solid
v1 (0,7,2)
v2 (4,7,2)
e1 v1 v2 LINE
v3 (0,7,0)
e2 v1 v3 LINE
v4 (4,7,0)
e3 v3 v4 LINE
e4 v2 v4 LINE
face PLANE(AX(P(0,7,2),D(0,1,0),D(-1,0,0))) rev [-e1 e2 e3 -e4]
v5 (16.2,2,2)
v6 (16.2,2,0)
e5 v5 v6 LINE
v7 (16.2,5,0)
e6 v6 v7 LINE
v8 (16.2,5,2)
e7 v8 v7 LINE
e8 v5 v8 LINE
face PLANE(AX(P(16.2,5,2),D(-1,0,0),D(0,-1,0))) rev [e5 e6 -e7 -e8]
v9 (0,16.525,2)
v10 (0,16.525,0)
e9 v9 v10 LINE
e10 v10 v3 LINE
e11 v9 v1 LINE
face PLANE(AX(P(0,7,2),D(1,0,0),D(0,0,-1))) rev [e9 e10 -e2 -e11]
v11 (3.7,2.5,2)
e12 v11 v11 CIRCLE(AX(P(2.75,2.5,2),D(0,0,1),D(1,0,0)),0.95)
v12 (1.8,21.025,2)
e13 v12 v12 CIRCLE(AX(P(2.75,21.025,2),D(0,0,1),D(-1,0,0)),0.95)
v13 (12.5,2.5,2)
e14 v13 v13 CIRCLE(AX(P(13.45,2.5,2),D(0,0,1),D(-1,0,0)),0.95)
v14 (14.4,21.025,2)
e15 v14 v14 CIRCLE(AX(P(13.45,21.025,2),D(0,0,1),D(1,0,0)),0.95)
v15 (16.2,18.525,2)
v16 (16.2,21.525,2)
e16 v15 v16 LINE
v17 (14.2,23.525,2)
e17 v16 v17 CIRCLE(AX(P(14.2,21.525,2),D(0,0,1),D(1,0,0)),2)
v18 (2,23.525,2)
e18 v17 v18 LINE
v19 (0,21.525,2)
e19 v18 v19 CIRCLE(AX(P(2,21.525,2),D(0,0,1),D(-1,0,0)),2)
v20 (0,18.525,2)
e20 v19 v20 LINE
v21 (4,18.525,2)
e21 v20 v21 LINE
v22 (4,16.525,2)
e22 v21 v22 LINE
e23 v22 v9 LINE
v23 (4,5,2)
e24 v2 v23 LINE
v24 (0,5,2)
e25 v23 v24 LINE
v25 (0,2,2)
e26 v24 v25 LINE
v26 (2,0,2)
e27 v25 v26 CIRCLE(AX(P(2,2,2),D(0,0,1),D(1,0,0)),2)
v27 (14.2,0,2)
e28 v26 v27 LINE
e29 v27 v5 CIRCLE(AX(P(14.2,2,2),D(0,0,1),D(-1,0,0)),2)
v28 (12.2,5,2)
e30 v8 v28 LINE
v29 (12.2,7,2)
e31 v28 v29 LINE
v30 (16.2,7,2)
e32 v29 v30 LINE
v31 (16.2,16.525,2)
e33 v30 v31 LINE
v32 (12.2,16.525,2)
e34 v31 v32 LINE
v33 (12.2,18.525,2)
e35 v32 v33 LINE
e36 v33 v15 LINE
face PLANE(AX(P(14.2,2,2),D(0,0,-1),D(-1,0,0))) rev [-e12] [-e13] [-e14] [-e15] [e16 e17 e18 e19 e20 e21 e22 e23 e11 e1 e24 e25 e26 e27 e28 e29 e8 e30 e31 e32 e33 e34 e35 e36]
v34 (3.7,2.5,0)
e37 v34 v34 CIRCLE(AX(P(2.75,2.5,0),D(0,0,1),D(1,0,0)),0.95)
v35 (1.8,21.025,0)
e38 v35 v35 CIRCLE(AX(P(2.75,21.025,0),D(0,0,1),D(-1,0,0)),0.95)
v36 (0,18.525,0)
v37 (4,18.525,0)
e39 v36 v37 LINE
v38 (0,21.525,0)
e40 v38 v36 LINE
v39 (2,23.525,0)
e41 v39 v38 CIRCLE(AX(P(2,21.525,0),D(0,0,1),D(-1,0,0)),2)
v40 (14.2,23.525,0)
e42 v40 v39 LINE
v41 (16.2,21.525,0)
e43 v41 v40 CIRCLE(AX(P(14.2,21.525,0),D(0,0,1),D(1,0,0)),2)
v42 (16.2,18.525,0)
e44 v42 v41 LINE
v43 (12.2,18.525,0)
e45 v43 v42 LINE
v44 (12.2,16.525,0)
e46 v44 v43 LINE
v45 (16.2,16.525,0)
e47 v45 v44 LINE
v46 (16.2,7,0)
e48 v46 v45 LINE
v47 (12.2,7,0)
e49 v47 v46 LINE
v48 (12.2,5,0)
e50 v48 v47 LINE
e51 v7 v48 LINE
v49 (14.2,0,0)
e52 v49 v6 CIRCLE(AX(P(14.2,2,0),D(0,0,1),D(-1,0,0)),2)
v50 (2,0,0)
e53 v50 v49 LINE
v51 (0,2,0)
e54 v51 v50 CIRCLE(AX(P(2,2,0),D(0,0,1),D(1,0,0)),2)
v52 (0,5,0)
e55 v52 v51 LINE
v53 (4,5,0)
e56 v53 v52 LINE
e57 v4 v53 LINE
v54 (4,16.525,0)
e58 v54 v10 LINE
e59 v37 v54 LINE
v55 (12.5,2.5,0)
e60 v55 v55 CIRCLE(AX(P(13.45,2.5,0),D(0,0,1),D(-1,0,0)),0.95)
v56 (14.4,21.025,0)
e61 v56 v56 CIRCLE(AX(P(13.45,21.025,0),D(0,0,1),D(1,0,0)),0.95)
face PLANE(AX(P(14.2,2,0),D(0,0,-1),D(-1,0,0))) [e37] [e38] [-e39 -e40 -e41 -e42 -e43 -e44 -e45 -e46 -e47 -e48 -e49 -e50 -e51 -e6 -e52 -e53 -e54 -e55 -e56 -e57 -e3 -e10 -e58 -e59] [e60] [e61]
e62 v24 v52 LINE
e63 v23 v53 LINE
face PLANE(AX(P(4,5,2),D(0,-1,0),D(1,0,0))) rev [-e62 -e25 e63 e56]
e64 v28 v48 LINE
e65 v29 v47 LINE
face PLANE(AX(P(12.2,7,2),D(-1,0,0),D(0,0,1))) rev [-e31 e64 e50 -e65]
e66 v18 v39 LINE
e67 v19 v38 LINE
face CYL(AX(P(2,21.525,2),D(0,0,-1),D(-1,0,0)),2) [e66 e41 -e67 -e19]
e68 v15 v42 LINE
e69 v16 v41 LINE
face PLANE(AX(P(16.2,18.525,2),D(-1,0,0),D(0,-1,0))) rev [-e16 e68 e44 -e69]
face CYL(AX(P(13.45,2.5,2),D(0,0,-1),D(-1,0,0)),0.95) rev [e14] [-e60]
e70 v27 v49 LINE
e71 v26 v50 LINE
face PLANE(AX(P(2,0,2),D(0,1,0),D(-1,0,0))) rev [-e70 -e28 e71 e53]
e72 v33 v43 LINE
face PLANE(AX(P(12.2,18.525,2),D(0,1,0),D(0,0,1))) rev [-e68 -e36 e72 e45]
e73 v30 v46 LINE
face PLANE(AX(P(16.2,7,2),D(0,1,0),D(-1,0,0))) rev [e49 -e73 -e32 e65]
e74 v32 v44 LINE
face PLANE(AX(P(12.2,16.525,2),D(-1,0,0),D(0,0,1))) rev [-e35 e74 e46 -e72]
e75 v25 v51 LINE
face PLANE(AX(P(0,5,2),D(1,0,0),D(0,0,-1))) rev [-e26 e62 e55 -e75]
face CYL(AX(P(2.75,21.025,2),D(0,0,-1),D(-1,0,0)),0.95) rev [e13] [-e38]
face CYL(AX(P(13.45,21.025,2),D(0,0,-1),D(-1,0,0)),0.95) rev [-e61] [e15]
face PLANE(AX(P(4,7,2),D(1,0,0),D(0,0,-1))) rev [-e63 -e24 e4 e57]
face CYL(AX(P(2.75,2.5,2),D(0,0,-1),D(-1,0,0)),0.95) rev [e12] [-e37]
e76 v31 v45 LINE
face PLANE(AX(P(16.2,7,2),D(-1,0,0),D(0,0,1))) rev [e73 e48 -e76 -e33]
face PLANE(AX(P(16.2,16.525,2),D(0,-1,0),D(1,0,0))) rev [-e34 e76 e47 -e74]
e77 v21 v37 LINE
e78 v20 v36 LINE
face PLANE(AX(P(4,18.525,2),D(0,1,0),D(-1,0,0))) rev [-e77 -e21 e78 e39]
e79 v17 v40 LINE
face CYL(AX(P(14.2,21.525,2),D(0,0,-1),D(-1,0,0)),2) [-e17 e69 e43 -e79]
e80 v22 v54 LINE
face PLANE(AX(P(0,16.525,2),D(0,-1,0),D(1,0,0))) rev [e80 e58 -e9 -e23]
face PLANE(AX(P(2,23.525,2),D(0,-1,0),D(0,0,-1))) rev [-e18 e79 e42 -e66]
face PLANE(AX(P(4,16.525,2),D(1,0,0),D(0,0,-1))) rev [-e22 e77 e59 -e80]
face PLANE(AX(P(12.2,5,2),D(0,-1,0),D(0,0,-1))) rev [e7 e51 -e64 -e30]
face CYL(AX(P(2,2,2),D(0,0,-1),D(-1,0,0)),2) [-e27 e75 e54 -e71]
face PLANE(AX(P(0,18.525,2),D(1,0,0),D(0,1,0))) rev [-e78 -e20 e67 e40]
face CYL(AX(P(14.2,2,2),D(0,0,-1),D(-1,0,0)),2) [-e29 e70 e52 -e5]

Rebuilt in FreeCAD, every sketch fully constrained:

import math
import FreeCAD as App
import Part
import Sketcher
from FreeCAD import Vector

doc = App.newDocument("Part")
body = doc.addObject("PartDesign::Body", "Body")

sketch1 = doc.addObject("Sketcher::SketchObject", "Sketch")
body.addObject(sketch1)
sketch1.AttachmentSupport = (doc.XY_Plane, [""])
sketch1.MapMode = "FlatFace"
sketch1.addGeometry([
    Part.LineSegment(Vector(16.2, 2, 0), Vector(16.2, 5, 0)),
    Part.LineSegment(Vector(16.2, 5, 0), Vector(12.2, 5, 0)),
    Part.LineSegment(Vector(12.2, 5, 0), Vector(12.2, 7, 0)),
    Part.LineSegment(Vector(12.2, 7, 0), Vector(16.2, 7, 0)),
    Part.LineSegment(Vector(16.2, 7, 0), Vector(16.2, 16.525, 0)),
    Part.LineSegment(Vector(16.2, 16.525, 0), Vector(12.2, 16.525, 0)),
    Part.LineSegment(Vector(12.2, 16.525, 0), Vector(12.2, 18.525, 0)),
    Part.LineSegment(Vector(12.2, 18.525, 0), Vector(16.2, 18.525, 0)),
    Part.LineSegment(Vector(16.2, 18.525, 0), Vector(16.2, 21.525, 0)),
    Part.ArcOfCircle(Part.Circle(Vector(14.2, 21.525, 0), Vector(0, 0, 1), 2), math.radians(0), math.radians(90)),
    Part.LineSegment(Vector(14.2, 23.525, 0), Vector(2, 23.525, 0)),
    Part.ArcOfCircle(Part.Circle(Vector(2, 21.525, 0), Vector(0, 0, 1), 2), math.radians(90), math.radians(180)),
    Part.LineSegment(Vector(0, 21.525, 0), Vector(0, 18.525, 0)),
    Part.LineSegment(Vector(0, 18.525, 0), Vector(4, 18.525, 0)),
    Part.LineSegment(Vector(4, 18.525, 0), Vector(4, 16.525, 0)),
    Part.LineSegment(Vector(4, 16.525, 0), Vector(0, 16.525, 0)),
    Part.LineSegment(Vector(0, 16.525, 0), Vector(0, 7, 0)),
    Part.LineSegment(Vector(0, 7, 0), Vector(4, 7, 0)),
    Part.LineSegment(Vector(4, 7, 0), Vector(4, 5, 0)),
    Part.LineSegment(Vector(4, 5, 0), Vector(0, 5, 0)),
    Part.LineSegment(Vector(0, 5, 0), Vector(0, 2, 0)),
    Part.ArcOfCircle(Part.Circle(Vector(2, 2, 0), Vector(0, 0, 1), 2), math.radians(-180), math.radians(-90)),
    Part.LineSegment(Vector(2, 0, 0), Vector(14.2, 0, 0)),
    Part.ArcOfCircle(Part.Circle(Vector(14.2, 2, 0), Vector(0, 0, 1), 2), math.radians(-90), math.radians(0)),
    Part.Circle(Vector(13.45, 2.5, 0), Vector(0, 0, 1), 0.95),
    Part.Circle(Vector(2.75, 2.5, 0), Vector(0, 0, 1), 0.95),
    Part.Circle(Vector(13.45, 21.025, 0), Vector(0, 0, 1), 0.95),
    Part.Circle(Vector(2.75, 21.025, 0), Vector(0, 0, 1), 0.95),
], False)
sketch1.addConstraint([
    Sketcher.Constraint("Coincident", 0, 2, 1, 1),
    Sketcher.Constraint("Coincident", 1, 2, 2, 1),
    Sketcher.Constraint("Coincident", 2, 2, 3, 1),
    Sketcher.Constraint("Coincident", 3, 2, 4, 1),
    Sketcher.Constraint("Coincident", 4, 2, 5, 1),
    Sketcher.Constraint("Coincident", 5, 2, 6, 1),
    Sketcher.Constraint("Coincident", 6, 2, 7, 1),
    Sketcher.Constraint("Coincident", 7, 2, 8, 1),
    Sketcher.Constraint("Tangent", 8, 2, 9, 1),
    Sketcher.Constraint("Tangent", 9, 2, 10, 1),
    Sketcher.Constraint("Tangent", 10, 2, 11, 1),
    Sketcher.Constraint("Tangent", 11, 2, 12, 1),
    Sketcher.Constraint("Coincident", 12, 2, 13, 1),
    Sketcher.Constraint("Coincident", 13, 2, 14, 1),
    Sketcher.Constraint("Coincident", 14, 2, 15, 1),
    Sketcher.Constraint("Coincident", 15, 2, 16, 1),
    Sketcher.Constraint("Coincident", 16, 2, 17, 1),
    Sketcher.Constraint("Coincident", 17, 2, 18, 1),
    Sketcher.Constraint("Coincident", 18, 2, 19, 1),
    Sketcher.Constraint("Coincident", 19, 2, 20, 1),
    Sketcher.Constraint("Tangent", 20, 2, 21, 1),
    Sketcher.Constraint("Tangent", 21, 2, 22, 1),
    Sketcher.Constraint("Tangent", 22, 2, 23, 1),
    Sketcher.Constraint("Tangent", 23, 2, 0, 1),
    Sketcher.Constraint("Vertical", 0),
    Sketcher.Constraint("Horizontal", 1),
    Sketcher.Constraint("Vertical", 2),
    Sketcher.Constraint("Horizontal", 3),
    Sketcher.Constraint("Vertical", 4),
    Sketcher.Constraint("Horizontal", 5),
    Sketcher.Constraint("Vertical", 6),
    Sketcher.Constraint("Horizontal", 7),
    Sketcher.Constraint("Vertical", 8),
    Sketcher.Constraint("Horizontal", 10),
    Sketcher.Constraint("Vertical", 12),
    Sketcher.Constraint("Horizontal", 13),
    Sketcher.Constraint("Vertical", 14),
    Sketcher.Constraint("Horizontal", 15),
    Sketcher.Constraint("Vertical", 16),
    Sketcher.Constraint("Horizontal", 17),
    Sketcher.Constraint("Vertical", 18),
    Sketcher.Constraint("Horizontal", 19),
    Sketcher.Constraint("Vertical", 20),
    Sketcher.Constraint("Horizontal", 22),
    Sketcher.Constraint("Equal", 9, 11),
    Sketcher.Constraint("Equal", 11, 21),
    Sketcher.Constraint("Equal", 21, 23),
    Sketcher.Constraint("Equal", 24, 25),
    Sketcher.Constraint("Equal", 25, 26),
    Sketcher.Constraint("Equal", 26, 27),
    Sketcher.Constraint("PointOnObject", 11, 2, -2),
    Sketcher.Constraint("PointOnObject", 15, 2, -2),
    Sketcher.Constraint("PointOnObject", 19, 2, -2),
    Sketcher.Constraint("PointOnObject", 21, 2, -1),
    Sketcher.Constraint("Horizontal", 24, 3, 25, 3),
    Sketcher.Constraint("Horizontal", 26, 3, 27, 3),
    Sketcher.Constraint("Horizontal", 7, 2, 12, 2),
    Sketcher.Constraint("Horizontal", 5, 2, 14, 2),
    Sketcher.Constraint("Horizontal", 3, 2, 16, 2),
    Sketcher.Constraint("Horizontal", 1, 2, 18, 2),
    Sketcher.Constraint("Vertical", 9, 3, 23, 3),
    Sketcher.Constraint("Vertical", 24, 3, 26, 3),
    Sketcher.Constraint("Vertical", 25, 3, 27, 3),
    Sketcher.Constraint("Vertical", 0, 2, 3, 2),
    Sketcher.Constraint("Vertical", 2, 2, 5, 2),
    Sketcher.Constraint("Vertical", 14, 2, 17, 2),
    Sketcher.Constraint("Equal", 7, 13),
    Sketcher.Constraint("Equal", 2, 6),
    Sketcher.Constraint("Equal", 0, 8),
    Sketcher.Constraint("Radius", 9, 2.0),
    Sketcher.Constraint("Diameter", 24, 1.9),
    Sketcher.Constraint("DistanceX", 1, 2, 1, 1, 4.0),
    Sketcher.Constraint("DistanceY", 0, 1, 0, 2, 3.0),
    Sketcher.Constraint("DistanceY", 2, 1, 2, 2, 2.0),
    Sketcher.Constraint("DistanceX", 10, 2, 10, 1, 12.2),
    Sketcher.Constraint("DistanceY", -1, 1, 24, 3, 2.5),
    Sketcher.Constraint("DistanceX", 25, 3, 24, 3, 10.7),
    Sketcher.Constraint("DistanceY", 26, 3, 9, 3, 0.5),
    Sketcher.Constraint("DistanceY", 4, 1, 4, 2, 9.525),
    Sketcher.Constraint("DistanceX", -1, 1, 24, 3, 13.45),
])
pad1 = doc.addObject("PartDesign::Pad", "Pad")
body.addObject(pad1)
pad1.Profile = sketch1
pad1.Length = 2

doc.recompute()
